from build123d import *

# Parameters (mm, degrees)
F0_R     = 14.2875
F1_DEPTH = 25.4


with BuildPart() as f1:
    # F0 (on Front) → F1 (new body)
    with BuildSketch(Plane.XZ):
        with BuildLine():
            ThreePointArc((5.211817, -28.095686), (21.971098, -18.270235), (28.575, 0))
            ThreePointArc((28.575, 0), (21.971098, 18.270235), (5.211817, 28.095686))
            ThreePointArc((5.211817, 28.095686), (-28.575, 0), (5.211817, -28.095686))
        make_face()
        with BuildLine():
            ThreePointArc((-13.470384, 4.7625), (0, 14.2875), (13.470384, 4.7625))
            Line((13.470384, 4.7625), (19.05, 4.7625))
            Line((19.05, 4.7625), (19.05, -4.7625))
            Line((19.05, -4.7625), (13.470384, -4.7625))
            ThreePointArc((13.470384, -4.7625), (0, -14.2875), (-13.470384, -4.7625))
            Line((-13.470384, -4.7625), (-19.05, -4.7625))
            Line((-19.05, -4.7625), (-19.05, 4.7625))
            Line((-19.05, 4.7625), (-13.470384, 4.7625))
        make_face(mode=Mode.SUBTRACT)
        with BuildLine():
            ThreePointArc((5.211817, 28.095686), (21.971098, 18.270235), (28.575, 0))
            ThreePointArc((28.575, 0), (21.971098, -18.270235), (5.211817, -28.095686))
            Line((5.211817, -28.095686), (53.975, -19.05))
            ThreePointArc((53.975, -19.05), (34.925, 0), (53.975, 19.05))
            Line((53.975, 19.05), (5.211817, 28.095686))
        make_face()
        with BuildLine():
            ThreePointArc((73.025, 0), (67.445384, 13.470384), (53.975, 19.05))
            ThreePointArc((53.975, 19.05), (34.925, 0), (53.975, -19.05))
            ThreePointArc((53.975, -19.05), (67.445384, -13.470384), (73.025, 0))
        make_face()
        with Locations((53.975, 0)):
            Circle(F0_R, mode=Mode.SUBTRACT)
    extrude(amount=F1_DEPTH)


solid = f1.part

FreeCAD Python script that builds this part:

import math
import FreeCAD as App
import Part
import Sketcher

V = App.Vector
Q = App.Units.Quantity

doc = App.newDocument("Part")
body = doc.addObject("PartDesign::Body", "Body")

# Sketch on XZ plane
sketch1 = body.newObject("Sketcher::SketchObject", "Sketch")
sketch1.AttachmentSupport = (doc.getObject("XZ_Plane"), [""])
sketch1.MapMode = "FlatFace"
sketch1.addGeometry(Part.ArcOfCircle(Part.Circle(V(0, 0, 0), V(0, 0, 1), 29), math.radians(79), math.radians(281)), False)
sketch1.addGeometry(Part.LineSegment(V(5, -28, 0), V(54, -19, 0)), False)
sketch1.addGeometry(Part.ArcOfCircle(Part.Circle(V(54, 0, 0), V(0, 0, 1), 19), math.radians(-90), math.radians(0)), False)
sketch1.addGeometry(Part.ArcOfCircle(Part.Circle(V(54, 0, 0), V(0, 0, 1), 19), math.radians(0), math.radians(90)), False)
sketch1.addGeometry(Part.LineSegment(V(54, 19, 0), V(5, 28, 0)), False)
sketch1.addGeometry(Part.LineSegment(V(-19, 5, 0), V(-13, 5, 0)), False)
sketch1.addGeometry(Part.ArcOfCircle(Part.Circle(V(0, 0, 0), V(0, 0, 1), 14), math.radians(19), math.radians(161)), False)
sketch1.addGeometry(Part.LineSegment(V(13, 5, 0), V(19, 5, 0)), False)
sketch1.addGeometry(Part.LineSegment(V(19, 5, 0), V(19, -5, 0)), False)
sketch1.addGeometry(Part.LineSegment(V(19, -5, 0), V(13, -5, 0)), False)
sketch1.addGeometry(Part.ArcOfCircle(Part.Circle(V(0, 0, 0), V(0, 0, 1), 14), math.radians(-161), math.radians(-19)), False)
sketch1.addGeometry(Part.LineSegment(V(-13, -5, 0), V(-19, -5, 0)), False)
sketch1.addGeometry(Part.LineSegment(V(-19, -5, 0), V(-19, 5, 0)), False)
sketch1.addGeometry(Part.Circle(V(54, 0, 0), V(0, 0, 1), 14), False)
sketch1.addConstraint(Sketcher.Constraint("Tangent", 0, 2, 1, 1))
sketch1.addConstraint(Sketcher.Constraint("Coincident", 1, 2, 2, 1))
sketch1.addConstraint(Sketcher.Constraint("Tangent", 2, 2, 3, 1))
sketch1.addConstraint(Sketcher.Constraint("Coincident", 3, 2, 4, 1))
sketch1.addConstraint(Sketcher.Constraint("Tangent", 4, 2, 0, 1))
sketch1.addConstraint(Sketcher.Constraint("Coincident", 5, 2, 6, 2))
sketch1.addConstraint(Sketcher.Constraint("Coincident", 6, 1, 7, 1))
sketch1.addConstraint(Sketcher.Constraint("Coincident", 7, 2, 8, 1))
sketch1.addConstraint(Sketcher.Constraint("Coincident", 8, 2, 9, 1))
sketch1.addConstraint(Sketcher.Constraint("Coincident", 9, 2, 10, 2))
sketch1.addConstraint(Sketcher.Constraint("Coincident", 10, 1, 11, 1))
sketch1.addConstraint(Sketcher.Constraint("Coincident", 11, 2, 12, 1))
sketch1.addConstraint(Sketcher.Constraint("Coincident", 12, 2, 5, 1))
sketch1.addConstraint(Sketcher.Constraint("Horizontal", 5))
sketch1.addConstraint(Sketcher.Constraint("Horizontal", 7))
sketch1.addConstraint(Sketcher.Constraint("Vertical", 8))
sketch1.addConstraint(Sketcher.Constraint("Horizontal", 9))
sketch1.addConstraint(Sketcher.Constraint("Horizontal", 11))
sketch1.addConstraint(Sketcher.Constraint("Vertical", 12))
sketch1.addConstraint(Sketcher.Constraint("Coincident", 0, 3, -1, 1))
sketch1.addConstraint(Sketcher.Constraint("Coincident", 6, 3, -1, 1))
sketch1.addConstraint(Sketcher.Constraint("Coincident", 10, 3, -1, 1))
sketch1.addConstraint(Sketcher.Constraint("Coincident", 13, 3, 2, 3))
sketch1.addConstraint(Sketcher.Constraint("Equal", 2, 3))
sketch1.addConstraint(Sketcher.Constraint("Equal", 6, 10))
sketch1.addConstraint(Sketcher.Constraint("Equal", 10, 13))
sketch1.addConstraint(Sketcher.Constraint("Symmetric", 7, 2, 11, 2, -1, 1))
sketch1.addConstraint(Sketcher.Constraint("Symmetric", 1, 2, 3, 2, -1))
sketch1.addConstraint(Sketcher.Constraint("PointOnObject", 2, 2, -1))
sketch1.addConstraint(Sketcher.Constraint("Horizontal", 5, 2, 6, 1))
sketch1.addConstraint(Sketcher.Constraint("Horizontal", 9, 2, 10, 1))
sketch1.addConstraint(Sketcher.Constraint("Vertical", 13, 3, 1, 2))
sketch1.addConstraint(Sketcher.Constraint("Radius", 2, Q("0.75 in")))
sketch1.addConstraint(Sketcher.Constraint("Diameter", 13, Q("1.125 in")))
sketch1.addConstraint(Sketcher.Constraint("Radius", 0, Q("1.125 in")))
sketch1.addConstraint(Sketcher.Constraint("DistanceY", 8, 2, 8, 1, Q("0.375 in")))
sketch1.addConstraint(Sketcher.Constraint("DistanceX", -1, 1, 7, 2, Q("0.75 in")))
sketch1.addConstraint(Sketcher.Constraint("DistanceX", -1, 1, 2, 3, Q("2.125 in")))
pad1 = body.newObject("PartDesign::Pad", "Pad")
pad1.Profile = sketch1
pad1.Length = Q("1 in")

doc.recompute()
